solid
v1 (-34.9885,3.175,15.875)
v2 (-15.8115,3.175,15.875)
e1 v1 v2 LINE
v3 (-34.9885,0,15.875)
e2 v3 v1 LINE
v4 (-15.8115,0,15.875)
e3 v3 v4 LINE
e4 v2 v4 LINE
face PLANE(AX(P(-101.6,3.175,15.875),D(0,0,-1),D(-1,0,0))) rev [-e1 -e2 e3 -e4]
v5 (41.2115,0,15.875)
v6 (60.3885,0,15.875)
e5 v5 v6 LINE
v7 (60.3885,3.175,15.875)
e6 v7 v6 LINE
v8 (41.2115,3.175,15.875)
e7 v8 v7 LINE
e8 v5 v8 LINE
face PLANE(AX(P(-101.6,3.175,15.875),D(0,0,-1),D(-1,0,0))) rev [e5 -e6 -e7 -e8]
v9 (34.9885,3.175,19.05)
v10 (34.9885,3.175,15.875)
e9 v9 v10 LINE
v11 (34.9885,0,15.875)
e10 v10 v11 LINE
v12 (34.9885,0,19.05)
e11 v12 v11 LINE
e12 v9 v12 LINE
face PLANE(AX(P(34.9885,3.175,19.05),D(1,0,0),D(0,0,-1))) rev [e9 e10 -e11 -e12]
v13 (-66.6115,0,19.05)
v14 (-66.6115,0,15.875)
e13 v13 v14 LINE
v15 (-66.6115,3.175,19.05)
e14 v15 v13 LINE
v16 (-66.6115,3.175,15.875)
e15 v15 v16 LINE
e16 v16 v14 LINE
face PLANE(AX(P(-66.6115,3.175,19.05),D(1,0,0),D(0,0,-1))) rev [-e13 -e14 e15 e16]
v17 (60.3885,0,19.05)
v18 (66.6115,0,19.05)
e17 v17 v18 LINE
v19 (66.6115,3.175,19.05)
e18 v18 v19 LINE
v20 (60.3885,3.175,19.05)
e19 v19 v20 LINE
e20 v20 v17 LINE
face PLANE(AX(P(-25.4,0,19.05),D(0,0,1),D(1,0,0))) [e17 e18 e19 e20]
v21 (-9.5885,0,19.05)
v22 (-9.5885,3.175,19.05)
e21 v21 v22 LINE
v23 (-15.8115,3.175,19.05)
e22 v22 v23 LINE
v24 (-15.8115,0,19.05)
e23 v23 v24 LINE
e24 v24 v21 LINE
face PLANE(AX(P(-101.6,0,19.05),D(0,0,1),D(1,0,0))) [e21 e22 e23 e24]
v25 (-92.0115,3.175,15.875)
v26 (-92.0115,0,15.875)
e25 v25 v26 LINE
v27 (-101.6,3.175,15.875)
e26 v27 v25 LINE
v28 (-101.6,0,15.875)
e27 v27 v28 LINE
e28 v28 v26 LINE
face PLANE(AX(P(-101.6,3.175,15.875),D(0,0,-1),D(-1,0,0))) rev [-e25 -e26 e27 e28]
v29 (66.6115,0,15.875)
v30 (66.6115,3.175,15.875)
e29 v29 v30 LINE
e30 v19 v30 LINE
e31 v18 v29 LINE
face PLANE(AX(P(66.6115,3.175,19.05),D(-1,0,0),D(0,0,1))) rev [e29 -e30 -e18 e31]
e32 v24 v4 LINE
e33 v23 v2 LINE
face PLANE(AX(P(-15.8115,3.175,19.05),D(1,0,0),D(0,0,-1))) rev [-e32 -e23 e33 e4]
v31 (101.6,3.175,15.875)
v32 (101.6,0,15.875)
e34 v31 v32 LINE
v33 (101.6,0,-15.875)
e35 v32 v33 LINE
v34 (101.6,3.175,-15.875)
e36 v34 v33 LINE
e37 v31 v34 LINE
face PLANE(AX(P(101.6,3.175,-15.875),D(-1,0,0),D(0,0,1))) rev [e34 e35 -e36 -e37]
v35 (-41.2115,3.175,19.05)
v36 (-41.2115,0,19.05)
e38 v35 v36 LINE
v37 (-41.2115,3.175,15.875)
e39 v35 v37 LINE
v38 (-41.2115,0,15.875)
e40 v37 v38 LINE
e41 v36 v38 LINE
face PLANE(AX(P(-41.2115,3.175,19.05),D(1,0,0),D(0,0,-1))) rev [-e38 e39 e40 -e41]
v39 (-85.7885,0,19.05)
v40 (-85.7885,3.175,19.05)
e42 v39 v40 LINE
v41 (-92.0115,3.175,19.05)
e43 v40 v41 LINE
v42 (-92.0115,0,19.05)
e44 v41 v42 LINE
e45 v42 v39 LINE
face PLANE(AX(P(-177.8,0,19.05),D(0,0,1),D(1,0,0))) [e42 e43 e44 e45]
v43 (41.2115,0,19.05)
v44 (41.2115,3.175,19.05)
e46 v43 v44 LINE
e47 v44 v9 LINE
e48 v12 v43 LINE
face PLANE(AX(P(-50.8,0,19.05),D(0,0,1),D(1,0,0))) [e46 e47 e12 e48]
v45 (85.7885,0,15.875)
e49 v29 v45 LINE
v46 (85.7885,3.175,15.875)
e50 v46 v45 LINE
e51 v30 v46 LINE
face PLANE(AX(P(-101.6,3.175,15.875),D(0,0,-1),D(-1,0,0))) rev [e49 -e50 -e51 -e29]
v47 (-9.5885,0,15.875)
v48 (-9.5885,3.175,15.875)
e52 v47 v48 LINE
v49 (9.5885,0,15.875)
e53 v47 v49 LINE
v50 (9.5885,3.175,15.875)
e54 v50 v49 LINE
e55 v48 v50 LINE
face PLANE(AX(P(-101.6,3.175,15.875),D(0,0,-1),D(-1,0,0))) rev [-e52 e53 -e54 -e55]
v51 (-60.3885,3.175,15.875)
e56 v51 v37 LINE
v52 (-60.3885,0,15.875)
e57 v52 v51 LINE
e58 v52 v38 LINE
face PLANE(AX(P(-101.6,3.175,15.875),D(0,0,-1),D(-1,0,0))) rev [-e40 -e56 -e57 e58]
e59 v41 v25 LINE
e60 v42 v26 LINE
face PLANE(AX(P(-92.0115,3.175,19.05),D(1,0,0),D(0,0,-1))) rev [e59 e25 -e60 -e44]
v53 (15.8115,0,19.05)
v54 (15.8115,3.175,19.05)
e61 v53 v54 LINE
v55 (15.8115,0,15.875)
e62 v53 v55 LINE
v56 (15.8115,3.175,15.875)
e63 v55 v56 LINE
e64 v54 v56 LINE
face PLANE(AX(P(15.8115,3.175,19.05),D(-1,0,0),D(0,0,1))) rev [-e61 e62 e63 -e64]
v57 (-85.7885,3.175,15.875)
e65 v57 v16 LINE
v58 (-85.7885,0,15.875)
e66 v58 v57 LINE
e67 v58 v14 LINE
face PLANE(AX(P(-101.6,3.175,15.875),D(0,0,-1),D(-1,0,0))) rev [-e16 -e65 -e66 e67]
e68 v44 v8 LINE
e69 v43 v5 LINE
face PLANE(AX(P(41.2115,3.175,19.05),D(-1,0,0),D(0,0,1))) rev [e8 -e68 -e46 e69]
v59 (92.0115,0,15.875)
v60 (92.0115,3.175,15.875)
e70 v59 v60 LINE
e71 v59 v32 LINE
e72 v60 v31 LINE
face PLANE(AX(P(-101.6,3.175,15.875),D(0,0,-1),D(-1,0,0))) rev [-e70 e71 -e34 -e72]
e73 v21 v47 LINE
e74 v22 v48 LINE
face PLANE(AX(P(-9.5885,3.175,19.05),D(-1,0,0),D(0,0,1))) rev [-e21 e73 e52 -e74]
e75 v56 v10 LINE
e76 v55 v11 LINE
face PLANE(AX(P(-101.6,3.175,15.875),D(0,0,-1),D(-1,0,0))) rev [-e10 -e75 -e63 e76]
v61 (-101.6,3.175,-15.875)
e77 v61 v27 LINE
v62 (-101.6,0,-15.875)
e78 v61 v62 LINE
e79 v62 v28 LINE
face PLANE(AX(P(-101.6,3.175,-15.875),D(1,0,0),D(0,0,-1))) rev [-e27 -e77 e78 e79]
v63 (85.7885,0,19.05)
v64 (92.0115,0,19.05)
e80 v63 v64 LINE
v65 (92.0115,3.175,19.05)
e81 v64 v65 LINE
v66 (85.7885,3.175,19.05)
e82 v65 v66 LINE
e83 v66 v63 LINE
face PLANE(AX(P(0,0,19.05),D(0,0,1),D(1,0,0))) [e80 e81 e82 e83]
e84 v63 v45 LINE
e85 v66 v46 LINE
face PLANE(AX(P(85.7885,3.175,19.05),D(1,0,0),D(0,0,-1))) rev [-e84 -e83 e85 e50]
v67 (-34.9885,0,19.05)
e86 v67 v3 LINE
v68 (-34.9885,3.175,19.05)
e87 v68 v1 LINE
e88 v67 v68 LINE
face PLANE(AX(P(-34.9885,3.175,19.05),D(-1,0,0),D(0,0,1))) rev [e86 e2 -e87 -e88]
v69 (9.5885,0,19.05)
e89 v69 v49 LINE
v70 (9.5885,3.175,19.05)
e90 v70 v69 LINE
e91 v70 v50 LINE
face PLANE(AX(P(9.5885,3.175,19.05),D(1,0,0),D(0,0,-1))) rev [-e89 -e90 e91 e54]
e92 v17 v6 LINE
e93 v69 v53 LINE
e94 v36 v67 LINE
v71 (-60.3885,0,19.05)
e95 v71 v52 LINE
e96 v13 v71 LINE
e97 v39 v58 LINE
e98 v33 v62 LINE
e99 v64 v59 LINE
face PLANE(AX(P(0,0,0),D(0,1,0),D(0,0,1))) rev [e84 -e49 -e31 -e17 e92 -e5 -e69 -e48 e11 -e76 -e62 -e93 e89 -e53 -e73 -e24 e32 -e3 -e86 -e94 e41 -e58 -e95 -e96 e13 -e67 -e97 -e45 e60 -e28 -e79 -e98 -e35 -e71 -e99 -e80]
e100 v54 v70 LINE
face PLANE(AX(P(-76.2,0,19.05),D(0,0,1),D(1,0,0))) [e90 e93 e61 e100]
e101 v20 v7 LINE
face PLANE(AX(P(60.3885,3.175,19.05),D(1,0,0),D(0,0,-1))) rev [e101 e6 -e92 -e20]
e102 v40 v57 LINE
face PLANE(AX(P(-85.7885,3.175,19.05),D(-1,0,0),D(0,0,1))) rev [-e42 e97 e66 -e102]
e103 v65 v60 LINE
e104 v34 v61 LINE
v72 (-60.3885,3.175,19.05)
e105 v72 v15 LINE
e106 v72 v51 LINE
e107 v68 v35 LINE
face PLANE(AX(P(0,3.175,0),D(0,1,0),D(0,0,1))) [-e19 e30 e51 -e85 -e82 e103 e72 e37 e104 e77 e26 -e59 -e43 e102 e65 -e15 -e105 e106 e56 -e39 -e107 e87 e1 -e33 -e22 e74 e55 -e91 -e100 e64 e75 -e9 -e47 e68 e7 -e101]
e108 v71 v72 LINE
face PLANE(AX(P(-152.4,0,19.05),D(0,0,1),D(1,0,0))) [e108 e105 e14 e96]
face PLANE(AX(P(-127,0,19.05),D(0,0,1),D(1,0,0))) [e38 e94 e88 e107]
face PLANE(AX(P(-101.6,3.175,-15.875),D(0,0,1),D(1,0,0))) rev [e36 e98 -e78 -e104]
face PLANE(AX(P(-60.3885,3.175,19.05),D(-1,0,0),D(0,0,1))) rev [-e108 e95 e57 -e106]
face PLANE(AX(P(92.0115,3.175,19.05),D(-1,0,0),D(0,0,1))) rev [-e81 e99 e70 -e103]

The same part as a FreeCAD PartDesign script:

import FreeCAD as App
import Part
import Sketcher
Q = App.Units.Quantity


def add_polygon(sketch, points):
    """Adds a closed chain of lines whose ends are joined by coincident constraints."""
    first, n = sketch.GeometryCount, len(points)
    for a, b in zip(points, points[1:] + points[:1]):
        sketch.addGeometry(Part.LineSegment(App.Vector(*a, 0), App.Vector(*b, 0)), False)
    for i in range(n):
        sketch.addConstraint(Sketcher.Constraint("Coincident", first + i, 2, first + (i + 1) % n, 1))

doc = App.newDocument("Part")
params = doc.addObject("Spreadsheet::Sheet", "Params")
for row, (alias, value) in enumerate([
    ("sketch1_width", "8 in"),
    ("sketch1_height", "1.25 in"),
    ("pad1_length", "0.125 in"),
    ("sketch2_width", "0.245 in"),
    ("sketch2_height", "0.125 in"),
    ("pad2_length", "0.125 in"),
    ("linearpattern_pitch", "1 in"),
], start=1):
    params.set(f"A{row}", alias)
    params.set(f"B{row}", "=" + value)
    params.setAlias(f"B{row}", alias)

body = doc.addObject("PartDesign::Body", "Body")

sketch1 = body.newObject("Sketcher::SketchObject", "Sketch")
sketch1.AttachmentSupport = (doc.getObject("XZ_Plane"), [""])
sketch1.MapMode = "FlatFace"
add_polygon(sketch1, [(-101.6, -15.875), (-101.6, 15.875), (101.6, 15.875), (101.6, -15.875)])
sketch1.addConstraint([
    Sketcher.Constraint("Vertical", 0),
    Sketcher.Constraint("Horizontal", 1),
    Sketcher.Constraint("Vertical", 2),
    Sketcher.Constraint("Horizontal", 3),
    Sketcher.Constraint("Symmetric", 0, 2, 2, 2, -1, 1),
    Sketcher.Constraint("DistanceX", 1, 1, 1, 2, Q("8 in")),
    Sketcher.Constraint("DistanceY", 0, 1, 0, 2, Q("1.25 in")),
])
sketch1.setExpression("Constraints[9]", "Params.sketch1_width")
sketch1.setExpression("Constraints[10]", "Params.sketch1_height")
pad1 = body.newObject("PartDesign::Pad", "Pad")
pad1.Profile = sketch1
pad1.setExpression("Length", "Params.pad1_length")
pad1.Reversed = True

sketch2 = body.newObject("Sketcher::SketchObject", "Sketch001")
sketch2.AttachmentSupport = (doc.getObject("XY_Plane"), [""])
sketch2.MapMode = "FlatFace"
sketch2.AttachmentOffset = App.Placement(App.Vector(0, 0, 0.625 * 25.4), App.Rotation())
add_polygon(sketch2, [(85.7885, 3.175), (85.7885, 0), (92.0115, 0), (92.0115, 3.175)])
sketch2.addConstraint([
    Sketcher.Constraint("Vertical", 0),
    Sketcher.Constraint("Horizontal", 1),
    Sketcher.Constraint("Vertical", 2),
    Sketcher.Constraint("Horizontal", 3),
    Sketcher.Constraint("PointOnObject", 0, 2, -1),
    Sketcher.Constraint("DistanceX", 1, 1, 1, 2, Q("0.245 in")),
    Sketcher.Constraint("DistanceY", 0, 2, 0, 1, Q("0.125 in")),
    Sketcher.Constraint("DistanceX", -1, 1, 0, 2, Q("3.3775 in")),
])
sketch2.setExpression("Constraints[9]", "Params.sketch2_width")
sketch2.setExpression("Constraints[10]", "Params.sketch2_height")
pad2 = body.newObject("PartDesign::Pad", "Pad001")
pad2.Profile = sketch2
pad2.setExpression("Length", "Params.pad2_length")
doc.recompute()

linearpattern = body.newObject("PartDesign::LinearPattern", "LinearPattern")
linearpattern.Originals = [pad2]
linearpattern.Direction = (doc.getObject("X_Axis"), [""])
linearpattern.Mode = "offset"
linearpattern.setExpression("Offset", "Params.linearpattern_pitch")
linearpattern.Occurrences = 8
linearpattern.Reversed = True
body.Tip = linearpattern

doc.recompute()
